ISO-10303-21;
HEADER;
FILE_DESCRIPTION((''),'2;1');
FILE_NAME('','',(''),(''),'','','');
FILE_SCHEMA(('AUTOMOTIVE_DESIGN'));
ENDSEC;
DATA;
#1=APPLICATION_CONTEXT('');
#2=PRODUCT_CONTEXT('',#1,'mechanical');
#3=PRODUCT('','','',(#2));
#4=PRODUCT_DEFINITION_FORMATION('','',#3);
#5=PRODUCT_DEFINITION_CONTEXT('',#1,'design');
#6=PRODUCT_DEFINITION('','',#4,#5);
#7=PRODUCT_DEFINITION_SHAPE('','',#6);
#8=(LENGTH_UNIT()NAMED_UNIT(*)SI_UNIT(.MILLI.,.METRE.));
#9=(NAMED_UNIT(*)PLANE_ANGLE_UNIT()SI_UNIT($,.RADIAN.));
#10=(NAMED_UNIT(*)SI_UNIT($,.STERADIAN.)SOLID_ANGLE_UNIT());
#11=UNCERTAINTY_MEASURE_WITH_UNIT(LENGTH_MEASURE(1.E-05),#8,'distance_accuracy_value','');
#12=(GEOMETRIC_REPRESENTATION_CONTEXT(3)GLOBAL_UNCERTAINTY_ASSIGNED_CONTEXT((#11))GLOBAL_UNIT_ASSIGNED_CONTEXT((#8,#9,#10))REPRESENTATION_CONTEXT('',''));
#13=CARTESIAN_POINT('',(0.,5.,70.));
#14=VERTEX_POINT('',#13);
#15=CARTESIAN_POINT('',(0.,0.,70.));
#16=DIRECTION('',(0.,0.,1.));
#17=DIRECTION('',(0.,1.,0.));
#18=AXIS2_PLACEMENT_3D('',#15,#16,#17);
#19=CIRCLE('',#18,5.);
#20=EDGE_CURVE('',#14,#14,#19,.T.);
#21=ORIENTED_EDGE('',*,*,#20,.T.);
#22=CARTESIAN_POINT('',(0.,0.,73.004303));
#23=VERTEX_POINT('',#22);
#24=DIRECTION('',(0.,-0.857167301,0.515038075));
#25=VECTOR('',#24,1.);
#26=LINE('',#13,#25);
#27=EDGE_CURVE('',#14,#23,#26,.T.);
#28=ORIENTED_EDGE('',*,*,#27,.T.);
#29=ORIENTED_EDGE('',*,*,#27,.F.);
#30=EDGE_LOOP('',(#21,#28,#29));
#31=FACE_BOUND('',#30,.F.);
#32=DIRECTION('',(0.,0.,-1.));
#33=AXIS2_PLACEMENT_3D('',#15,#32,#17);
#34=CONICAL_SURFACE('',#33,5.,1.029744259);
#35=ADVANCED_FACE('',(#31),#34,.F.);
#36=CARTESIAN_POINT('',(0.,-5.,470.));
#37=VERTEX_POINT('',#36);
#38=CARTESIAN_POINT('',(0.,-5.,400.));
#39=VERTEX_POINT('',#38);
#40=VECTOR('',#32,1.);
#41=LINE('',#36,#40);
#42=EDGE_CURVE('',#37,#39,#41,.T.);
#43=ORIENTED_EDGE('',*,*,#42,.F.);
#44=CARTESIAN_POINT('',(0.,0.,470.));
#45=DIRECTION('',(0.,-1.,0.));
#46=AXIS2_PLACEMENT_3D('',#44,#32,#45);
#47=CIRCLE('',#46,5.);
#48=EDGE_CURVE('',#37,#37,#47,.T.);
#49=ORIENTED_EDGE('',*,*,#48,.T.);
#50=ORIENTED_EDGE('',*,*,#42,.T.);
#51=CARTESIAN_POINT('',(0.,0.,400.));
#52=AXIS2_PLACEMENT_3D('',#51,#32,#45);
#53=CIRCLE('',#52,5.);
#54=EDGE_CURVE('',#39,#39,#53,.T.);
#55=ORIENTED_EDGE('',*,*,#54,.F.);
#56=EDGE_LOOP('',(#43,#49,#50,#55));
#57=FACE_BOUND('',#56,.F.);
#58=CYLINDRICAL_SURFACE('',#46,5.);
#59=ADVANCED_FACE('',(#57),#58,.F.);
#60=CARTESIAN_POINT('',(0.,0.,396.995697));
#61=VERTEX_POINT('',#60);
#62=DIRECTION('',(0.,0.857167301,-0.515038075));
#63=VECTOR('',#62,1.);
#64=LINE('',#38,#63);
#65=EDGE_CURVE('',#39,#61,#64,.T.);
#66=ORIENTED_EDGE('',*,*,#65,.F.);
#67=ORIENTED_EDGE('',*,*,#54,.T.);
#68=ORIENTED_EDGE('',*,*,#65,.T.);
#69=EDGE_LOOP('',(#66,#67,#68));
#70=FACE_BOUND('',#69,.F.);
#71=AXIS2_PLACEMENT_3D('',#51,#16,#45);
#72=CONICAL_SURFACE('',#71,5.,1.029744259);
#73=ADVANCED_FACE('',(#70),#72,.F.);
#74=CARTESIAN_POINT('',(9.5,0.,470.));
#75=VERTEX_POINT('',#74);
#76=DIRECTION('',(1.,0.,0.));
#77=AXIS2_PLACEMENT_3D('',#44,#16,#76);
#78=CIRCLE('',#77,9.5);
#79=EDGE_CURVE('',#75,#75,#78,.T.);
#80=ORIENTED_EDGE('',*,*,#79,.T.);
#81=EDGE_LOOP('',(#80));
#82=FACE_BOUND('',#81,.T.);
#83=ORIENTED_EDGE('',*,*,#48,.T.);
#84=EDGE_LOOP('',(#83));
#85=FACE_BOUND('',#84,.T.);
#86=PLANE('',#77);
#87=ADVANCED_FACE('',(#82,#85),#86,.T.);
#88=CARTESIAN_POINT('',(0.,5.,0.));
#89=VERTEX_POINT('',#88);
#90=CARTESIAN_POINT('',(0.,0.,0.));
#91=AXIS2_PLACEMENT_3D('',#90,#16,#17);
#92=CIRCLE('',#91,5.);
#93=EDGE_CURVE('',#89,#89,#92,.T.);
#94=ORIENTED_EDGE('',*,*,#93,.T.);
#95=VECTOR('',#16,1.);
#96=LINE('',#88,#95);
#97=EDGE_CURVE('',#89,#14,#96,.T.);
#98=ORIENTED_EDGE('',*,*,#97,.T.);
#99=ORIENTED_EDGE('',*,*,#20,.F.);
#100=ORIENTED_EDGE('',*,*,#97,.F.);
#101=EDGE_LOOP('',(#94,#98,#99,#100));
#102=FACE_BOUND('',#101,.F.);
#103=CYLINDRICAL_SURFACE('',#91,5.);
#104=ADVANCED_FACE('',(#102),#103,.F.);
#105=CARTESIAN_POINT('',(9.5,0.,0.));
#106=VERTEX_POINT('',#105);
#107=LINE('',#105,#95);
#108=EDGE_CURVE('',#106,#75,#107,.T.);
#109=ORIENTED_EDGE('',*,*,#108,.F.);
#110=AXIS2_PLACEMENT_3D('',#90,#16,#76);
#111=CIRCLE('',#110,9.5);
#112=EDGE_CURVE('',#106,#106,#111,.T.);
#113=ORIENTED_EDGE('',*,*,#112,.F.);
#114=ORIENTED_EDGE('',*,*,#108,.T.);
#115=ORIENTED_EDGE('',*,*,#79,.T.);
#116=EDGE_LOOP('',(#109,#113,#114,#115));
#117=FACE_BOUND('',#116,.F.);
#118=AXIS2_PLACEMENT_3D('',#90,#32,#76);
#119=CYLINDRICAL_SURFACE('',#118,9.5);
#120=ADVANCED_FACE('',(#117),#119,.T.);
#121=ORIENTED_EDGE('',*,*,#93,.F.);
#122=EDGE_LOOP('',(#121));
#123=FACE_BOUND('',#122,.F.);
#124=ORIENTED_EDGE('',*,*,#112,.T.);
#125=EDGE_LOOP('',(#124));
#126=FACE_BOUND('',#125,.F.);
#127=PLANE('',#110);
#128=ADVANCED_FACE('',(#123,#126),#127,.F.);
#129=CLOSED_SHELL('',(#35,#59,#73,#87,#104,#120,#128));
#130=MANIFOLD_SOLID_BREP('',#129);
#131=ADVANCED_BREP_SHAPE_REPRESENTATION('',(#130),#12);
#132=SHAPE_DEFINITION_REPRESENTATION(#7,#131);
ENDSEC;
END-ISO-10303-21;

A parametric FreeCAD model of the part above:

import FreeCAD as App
import Part
import Sketcher
Q = App.Units.Quantity

doc = App.newDocument("Part")
body = doc.addObject("PartDesign::Body", "Body")

sketch1 = doc.addObject("Sketcher::SketchObject", "Sketch")
body.addObject(sketch1)
sketch1.AttachmentSupport = (doc.XY_Plane, [""])
sketch1.MapMode = "FlatFace"
sketch1.addGeometry(Part.Circle(App.Vector(0, 0, 0), App.Vector(0, 0, 1), 10), False)
sketch1.addConstraint([
    Sketcher.Constraint("Coincident", 0, 3, -1, 1),
    Sketcher.Constraint("Diameter", 0, Q("19 mm")),
])
pad1 = doc.addObject("PartDesign::Pad", "Pad")
body.addObject(pad1)
pad1.Profile = sketch1
pad1.Length = 470

sketch2 = doc.addObject("Sketcher::SketchObject", "Sketch001")
body.addObject(sketch2)
sketch2.AttachmentSupport = (doc.XY_Plane, [""])
sketch2.MapMode = "FlatFace"
sketch2.AttachmentOffset = App.Placement(App.Vector(0, 0, 470), App.Rotation())
sketch2.addGeometry(Part.Circle(App.Vector(0, 0, 0), App.Vector(0, 0, 1), 5), False)
sketch2.addConstraint([
    Sketcher.Constraint("Coincident", 0, 3, -1, 1),
    Sketcher.Constraint("Diameter", 0, Q("10 mm")),
])
doc.recompute()
hole = doc.addObject("PartDesign::Hole", "Hole")
body.addObject(hole)
hole.Profile = sketch2
hole.ThreadType = "None"
hole.Diameter = 10
hole.DepthType = "Dimension"
hole.Depth = 70
hole.DrillPoint = "Angled"
hole.DrillPointAngle = 118

sketch3 = doc.addObject("Sketcher::SketchObject", "Sketch002")
body.addObject(sketch3)
sketch3.AttachmentSupport = (doc.XY_Plane, [""])
sketch3.MapMode = "FlatFace"
sketch3.addGeometry(Part.Circle(App.Vector(0, 0, 0), App.Vector(0, 0, 1), 5), False)
sketch3.addConstraint([
    Sketcher.Constraint("Coincident", 0, 3, -1, 1),
    Sketcher.Constraint("Diameter", 0, Q("10 mm")),
])
doc.recompute()
hole2 = doc.addObject("PartDesign::Hole", "Hole001")
body.addObject(hole2)
hole2.Profile = sketch3
hole2.ThreadType = "None"
hole2.Diameter = 10
hole2.DepthType = "Dimension"
hole2.Depth = 70
hole2.DrillPoint = "Angled"
hole2.DrillPointAngle = 118
hole2.Reversed = True

doc.recompute()
